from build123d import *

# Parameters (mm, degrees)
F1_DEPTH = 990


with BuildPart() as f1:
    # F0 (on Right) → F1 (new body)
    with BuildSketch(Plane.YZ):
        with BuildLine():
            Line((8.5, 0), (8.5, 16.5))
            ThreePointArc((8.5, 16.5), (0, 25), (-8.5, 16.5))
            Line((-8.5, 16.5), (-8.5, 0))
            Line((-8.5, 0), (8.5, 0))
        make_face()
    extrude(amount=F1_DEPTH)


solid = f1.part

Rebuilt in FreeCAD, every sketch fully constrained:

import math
import FreeCAD as App
import Part
import Sketcher
Q = App.Units.Quantity

doc = App.newDocument("Part")
body = doc.addObject("PartDesign::Body", "Body")

sketch1 = body.newObject("Sketcher::SketchObject", "Sketch")
sketch1.AttachmentSupport = (doc.getObject("YZ_Plane"), [""])
sketch1.MapMode = "FlatFace"
sketch1.addGeometry([
    Part.LineSegment(App.Vector(8.5, 0, 0), App.Vector(8.5, 16.5, 0)),
    Part.ArcOfCircle(Part.Circle(App.Vector(0, 16.5, 0), App.Vector(0, 0, 1), 8.5), math.radians(0), math.radians(180)),
    Part.LineSegment(App.Vector(-8.5, 16.5, 0), App.Vector(-8.5, 0, 0)),
    Part.LineSegment(App.Vector(-8.5, 0, 0), App.Vector(8.5, 0, 0)),
], False)
sketch1.addConstraint([
    Sketcher.Constraint("Tangent", 0, 2, 1, 1),
    Sketcher.Constraint("Tangent", 1, 2, 2, 1),
    Sketcher.Constraint("Coincident", 2, 2, 3, 1),
    Sketcher.Constraint("Coincident", 3, 2, 0, 1),
    Sketcher.Constraint("Vertical", 0),
    Sketcher.Constraint("Vertical", 2),
    Sketcher.Constraint("Horizontal", 3),
    Sketcher.Constraint("Symmetric", 2, 2, 3, 2, -1, 1),
    Sketcher.Constraint("Radius", 1, Q("8.5 mm")),
    Sketcher.Constraint("DistanceY", 0, 1, 0, 2, Q("16.5 mm")),
])
pad1 = body.newObject("PartDesign::Pad", "Pad")
pad1.Profile = sketch1
pad1.Length = 990

doc.recompute()
